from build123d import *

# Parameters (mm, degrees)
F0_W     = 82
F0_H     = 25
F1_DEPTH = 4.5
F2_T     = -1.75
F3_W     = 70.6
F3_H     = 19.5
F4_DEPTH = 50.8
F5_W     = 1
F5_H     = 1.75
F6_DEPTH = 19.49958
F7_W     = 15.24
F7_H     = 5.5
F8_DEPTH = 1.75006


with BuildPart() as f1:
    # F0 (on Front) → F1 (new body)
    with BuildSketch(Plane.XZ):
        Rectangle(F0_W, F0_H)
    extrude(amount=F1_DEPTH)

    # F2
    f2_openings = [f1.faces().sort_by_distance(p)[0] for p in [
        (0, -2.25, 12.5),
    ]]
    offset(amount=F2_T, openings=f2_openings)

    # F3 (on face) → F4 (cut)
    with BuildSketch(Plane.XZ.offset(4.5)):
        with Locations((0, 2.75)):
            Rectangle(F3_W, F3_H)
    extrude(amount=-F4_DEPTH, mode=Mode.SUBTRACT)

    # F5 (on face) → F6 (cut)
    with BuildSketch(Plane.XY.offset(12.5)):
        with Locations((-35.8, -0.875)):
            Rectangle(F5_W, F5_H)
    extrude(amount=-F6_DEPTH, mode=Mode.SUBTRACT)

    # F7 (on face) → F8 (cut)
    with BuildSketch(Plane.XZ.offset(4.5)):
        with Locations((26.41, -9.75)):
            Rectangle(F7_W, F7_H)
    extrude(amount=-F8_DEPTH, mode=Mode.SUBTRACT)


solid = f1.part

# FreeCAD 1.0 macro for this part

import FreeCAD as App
import Part
import Sketcher

V = App.Vector
Q = App.Units.Quantity


def faces_at(feature, points):
    """Names of the faces that lie closest to the given points."""
    faces = feature.Shape.Faces
    near = lambda p: min(range(len(faces)), key=lambda i: faces[i].distToShape(Part.Vertex(*p))[0])
    return sorted({f"Face{near(p) + 1}" for p in points})


def add_polygon(sketch, points):
    """Adds a closed chain of lines whose ends are joined by coincident constraints."""
    first, n = sketch.GeometryCount, len(points)
    for a, b in zip(points, points[1:] + points[:1]):
        sketch.addGeometry(Part.LineSegment(App.Vector(*a, 0), App.Vector(*b, 0)), False)
    for i in range(n):
        sketch.addConstraint(Sketcher.Constraint("Coincident", first + i, 2, first + (i + 1) % n, 1))

doc = App.newDocument("Part")
params = doc.addObject("Spreadsheet::Sheet", "Params")
for row, (alias, value) in enumerate([
    ("sketch1_width", "82 mm"),
    ("sketch1_height", "25 mm"),
    ("pad1_length", "4.5 mm"),
    ("thickness_wall", "1.75 mm"),
    ("sketch2_width", "70.6 mm"),
    ("sketch2_height", "19.5 mm"),
    ("pocket1_length", "50.8 mm"),
    ("sketch3_width", "1 mm"),
    ("sketch3_height", "1.75 mm"),
    ("pocket2_length", "19.49958 mm"),
    ("sketch4_height", "5.5 mm"),
    ("sketch4_width", "15.24 mm"),
    ("pocket3_length", "1.75006 mm"),
], start=1):
    params.set(f"A{row}", alias)
    params.set(f"B{row}", "=" + value)
    params.setAlias(f"B{row}", alias)

body = doc.addObject("PartDesign::Body", "Body")

sketch1 = body.newObject("Sketcher::SketchObject", "Sketch")
sketch1.AttachmentSupport = (doc.getObject("XZ_Plane"), [""])
sketch1.MapMode = "FlatFace"
add_polygon(sketch1, [(-41, 12), (-41, -12), (41, -12), (41, 12)])
sketch1.addConstraint(Sketcher.Constraint("Vertical", 0))
sketch1.addConstraint(Sketcher.Constraint("Horizontal", 1))
sketch1.addConstraint(Sketcher.Constraint("Vertical", 2))
sketch1.addConstraint(Sketcher.Constraint("Horizontal", 3))
sketch1.addConstraint(Sketcher.Constraint("Symmetric", 0, 2, 2, 2, -1, 1))
sketch1.addConstraint(Sketcher.Constraint("DistanceX", 1, 1, 1, 2, Q("82 mm")))
sketch1.addConstraint(Sketcher.Constraint("DistanceY", 0, 2, 0, 1, Q("25 mm")))
sketch1.setExpression("Constraints[9]", "Params.sketch1_width")
sketch1.setExpression("Constraints[10]", "Params.sketch1_height")
pad1 = body.newObject("PartDesign::Pad", "Pad")
pad1.Profile = sketch1
pad1.setExpression("Length", "Params.pad1_length")
doc.recompute()

thickness = body.newObject("PartDesign::Thickness", "Thickness")
thickness.Base = (pad1, faces_at(pad1, [(0, -2.25, 12.5)]))
thickness.setExpression("Value", "Params.thickness_wall")
thickness.Reversed = True
thickness.Join = "Arc"

sketch2 = body.newObject("Sketcher::SketchObject", "Sketch001")
sketch2.AttachmentSupport = (doc.getObject("XZ_Plane"), [""])
sketch2.MapMode = "FlatFace"
sketch2.AttachmentOffset = App.Placement(V(0, 0, 4.5), App.Rotation())
add_polygon(sketch2, [(-35, 12), (-35, -7), (35, -7), (35, 12)])
sketch2.addConstraint(Sketcher.Constraint("Vertical", 0))
sketch2.addConstraint(Sketcher.Constraint("Horizontal", 1))
sketch2.addConstraint(Sketcher.Constraint("Vertical", 2))
sketch2.addConstraint(Sketcher.Constraint("Horizontal", 3))
sketch2.addConstraint(Sketcher.Constraint("DistanceX", 1, 1, 1, 2, Q("70.6 mm")))
sketch2.addConstraint(Sketcher.Constraint("DistanceY", 0, 2, 0, 1, Q("19.5 mm")))
sketch2.addConstraint(Sketcher.Constraint("DistanceY", 0, 2, -1, 1, Q("7 mm")))
sketch2.addConstraint(Sketcher.Constraint("DistanceX", 0, 2, -1, 1, Q("35.3 mm")))
sketch2.setExpression("Constraints[8]", "Params.sketch2_width")
sketch2.setExpression("Constraints[9]", "Params.sketch2_height")
pocket1 = body.newObject("PartDesign::Pocket", "Pocket")
pocket1.Profile = sketch2
pocket1.setExpression("Length", "Params.pocket1_length")

sketch3 = body.newObject("Sketcher::SketchObject", "Sketch002")
sketch3.AttachmentSupport = (doc.getObject("XY_Plane"), [""])
sketch3.MapMode = "FlatFace"
sketch3.AttachmentOffset = App.Placement(V(0, 0, 12.5), App.Rotation())
add_polygon(sketch3, [(-36.3, 0), (-36.3, -1.8), (-35.3, -1.8), (-35.3, 0)])
sketch3.addConstraint(Sketcher.Constraint("Vertical", 0))
sketch3.addConstraint(Sketcher.Constraint("Horizontal", 1))
sketch3.addConstraint(Sketcher.Constraint("Vertical", 2))
sketch3.addConstraint(Sketcher.Constraint("Horizontal", 3))
sketch3.addConstraint(Sketcher.Constraint("PointOnObject", 2, 2, -1))
sketch3.addConstraint(Sketcher.Constraint("DistanceX", 1, 1, 1, 2, Q("1 mm")))
sketch3.addConstraint(Sketcher.Constraint("DistanceY", 0, 2, 0, 1, Q("1.75 mm")))
sketch3.addConstraint(Sketcher.Constraint("DistanceX", 0, 2, -1, 1, Q("36.3 mm")))
sketch3.setExpression("Constraints[9]", "Params.sketch3_width")
sketch3.setExpression("Constraints[10]", "Params.sketch3_height")
pocket2 = body.newObject("PartDesign::Pocket", "Pocket001")
pocket2.Profile = sketch3
pocket2.setExpression("Length", "Params.pocket2_length")

sketch4 = body.newObject("Sketcher::SketchObject", "Sketch003")
sketch4.AttachmentSupport = (doc.getObject("XZ_Plane"), [""])
sketch4.MapMode = "FlatFace"
sketch4.AttachmentOffset = App.Placement(V(0, 0, 4.5), App.Rotation())
add_polygon(sketch4, [(19, -7), (19, -12), (34, -12), (34, -7)])
sketch4.addConstraint(Sketcher.Constraint("Vertical", 0))
sketch4.addConstraint(Sketcher.Constraint("Horizontal", 1))
sketch4.addConstraint(Sketcher.Constraint("Vertical", 2))
sketch4.addConstraint(Sketcher.Constraint("Horizontal", 3))
sketch4.addConstraint(Sketcher.Constraint("DistanceY", 0, 2, 0, 1, Q("5.5 mm")))
sketch4.addConstraint(Sketcher.Constraint("DistanceY", 2, 2, -1, 1, Q("7 mm")))
sketch4.addConstraint(Sketcher.Constraint("DistanceX", 1, 1, 1, 2, Q("15.24 mm")))
sketch4.addConstraint(Sketcher.Constraint("DistanceX", -1, 1, 0, 2, Q("18.79 mm")))
sketch4.setExpression("Constraints[8]", "Params.sketch4_height")
sketch4.setExpression("Constraints[10]", "Params.sketch4_width")
pocket3 = body.newObject("PartDesign::Pocket", "Pocket002")
pocket3.Profile = sketch4
pocket3.setExpression("Length", "Params.pocket3_length")

doc.recompute()
